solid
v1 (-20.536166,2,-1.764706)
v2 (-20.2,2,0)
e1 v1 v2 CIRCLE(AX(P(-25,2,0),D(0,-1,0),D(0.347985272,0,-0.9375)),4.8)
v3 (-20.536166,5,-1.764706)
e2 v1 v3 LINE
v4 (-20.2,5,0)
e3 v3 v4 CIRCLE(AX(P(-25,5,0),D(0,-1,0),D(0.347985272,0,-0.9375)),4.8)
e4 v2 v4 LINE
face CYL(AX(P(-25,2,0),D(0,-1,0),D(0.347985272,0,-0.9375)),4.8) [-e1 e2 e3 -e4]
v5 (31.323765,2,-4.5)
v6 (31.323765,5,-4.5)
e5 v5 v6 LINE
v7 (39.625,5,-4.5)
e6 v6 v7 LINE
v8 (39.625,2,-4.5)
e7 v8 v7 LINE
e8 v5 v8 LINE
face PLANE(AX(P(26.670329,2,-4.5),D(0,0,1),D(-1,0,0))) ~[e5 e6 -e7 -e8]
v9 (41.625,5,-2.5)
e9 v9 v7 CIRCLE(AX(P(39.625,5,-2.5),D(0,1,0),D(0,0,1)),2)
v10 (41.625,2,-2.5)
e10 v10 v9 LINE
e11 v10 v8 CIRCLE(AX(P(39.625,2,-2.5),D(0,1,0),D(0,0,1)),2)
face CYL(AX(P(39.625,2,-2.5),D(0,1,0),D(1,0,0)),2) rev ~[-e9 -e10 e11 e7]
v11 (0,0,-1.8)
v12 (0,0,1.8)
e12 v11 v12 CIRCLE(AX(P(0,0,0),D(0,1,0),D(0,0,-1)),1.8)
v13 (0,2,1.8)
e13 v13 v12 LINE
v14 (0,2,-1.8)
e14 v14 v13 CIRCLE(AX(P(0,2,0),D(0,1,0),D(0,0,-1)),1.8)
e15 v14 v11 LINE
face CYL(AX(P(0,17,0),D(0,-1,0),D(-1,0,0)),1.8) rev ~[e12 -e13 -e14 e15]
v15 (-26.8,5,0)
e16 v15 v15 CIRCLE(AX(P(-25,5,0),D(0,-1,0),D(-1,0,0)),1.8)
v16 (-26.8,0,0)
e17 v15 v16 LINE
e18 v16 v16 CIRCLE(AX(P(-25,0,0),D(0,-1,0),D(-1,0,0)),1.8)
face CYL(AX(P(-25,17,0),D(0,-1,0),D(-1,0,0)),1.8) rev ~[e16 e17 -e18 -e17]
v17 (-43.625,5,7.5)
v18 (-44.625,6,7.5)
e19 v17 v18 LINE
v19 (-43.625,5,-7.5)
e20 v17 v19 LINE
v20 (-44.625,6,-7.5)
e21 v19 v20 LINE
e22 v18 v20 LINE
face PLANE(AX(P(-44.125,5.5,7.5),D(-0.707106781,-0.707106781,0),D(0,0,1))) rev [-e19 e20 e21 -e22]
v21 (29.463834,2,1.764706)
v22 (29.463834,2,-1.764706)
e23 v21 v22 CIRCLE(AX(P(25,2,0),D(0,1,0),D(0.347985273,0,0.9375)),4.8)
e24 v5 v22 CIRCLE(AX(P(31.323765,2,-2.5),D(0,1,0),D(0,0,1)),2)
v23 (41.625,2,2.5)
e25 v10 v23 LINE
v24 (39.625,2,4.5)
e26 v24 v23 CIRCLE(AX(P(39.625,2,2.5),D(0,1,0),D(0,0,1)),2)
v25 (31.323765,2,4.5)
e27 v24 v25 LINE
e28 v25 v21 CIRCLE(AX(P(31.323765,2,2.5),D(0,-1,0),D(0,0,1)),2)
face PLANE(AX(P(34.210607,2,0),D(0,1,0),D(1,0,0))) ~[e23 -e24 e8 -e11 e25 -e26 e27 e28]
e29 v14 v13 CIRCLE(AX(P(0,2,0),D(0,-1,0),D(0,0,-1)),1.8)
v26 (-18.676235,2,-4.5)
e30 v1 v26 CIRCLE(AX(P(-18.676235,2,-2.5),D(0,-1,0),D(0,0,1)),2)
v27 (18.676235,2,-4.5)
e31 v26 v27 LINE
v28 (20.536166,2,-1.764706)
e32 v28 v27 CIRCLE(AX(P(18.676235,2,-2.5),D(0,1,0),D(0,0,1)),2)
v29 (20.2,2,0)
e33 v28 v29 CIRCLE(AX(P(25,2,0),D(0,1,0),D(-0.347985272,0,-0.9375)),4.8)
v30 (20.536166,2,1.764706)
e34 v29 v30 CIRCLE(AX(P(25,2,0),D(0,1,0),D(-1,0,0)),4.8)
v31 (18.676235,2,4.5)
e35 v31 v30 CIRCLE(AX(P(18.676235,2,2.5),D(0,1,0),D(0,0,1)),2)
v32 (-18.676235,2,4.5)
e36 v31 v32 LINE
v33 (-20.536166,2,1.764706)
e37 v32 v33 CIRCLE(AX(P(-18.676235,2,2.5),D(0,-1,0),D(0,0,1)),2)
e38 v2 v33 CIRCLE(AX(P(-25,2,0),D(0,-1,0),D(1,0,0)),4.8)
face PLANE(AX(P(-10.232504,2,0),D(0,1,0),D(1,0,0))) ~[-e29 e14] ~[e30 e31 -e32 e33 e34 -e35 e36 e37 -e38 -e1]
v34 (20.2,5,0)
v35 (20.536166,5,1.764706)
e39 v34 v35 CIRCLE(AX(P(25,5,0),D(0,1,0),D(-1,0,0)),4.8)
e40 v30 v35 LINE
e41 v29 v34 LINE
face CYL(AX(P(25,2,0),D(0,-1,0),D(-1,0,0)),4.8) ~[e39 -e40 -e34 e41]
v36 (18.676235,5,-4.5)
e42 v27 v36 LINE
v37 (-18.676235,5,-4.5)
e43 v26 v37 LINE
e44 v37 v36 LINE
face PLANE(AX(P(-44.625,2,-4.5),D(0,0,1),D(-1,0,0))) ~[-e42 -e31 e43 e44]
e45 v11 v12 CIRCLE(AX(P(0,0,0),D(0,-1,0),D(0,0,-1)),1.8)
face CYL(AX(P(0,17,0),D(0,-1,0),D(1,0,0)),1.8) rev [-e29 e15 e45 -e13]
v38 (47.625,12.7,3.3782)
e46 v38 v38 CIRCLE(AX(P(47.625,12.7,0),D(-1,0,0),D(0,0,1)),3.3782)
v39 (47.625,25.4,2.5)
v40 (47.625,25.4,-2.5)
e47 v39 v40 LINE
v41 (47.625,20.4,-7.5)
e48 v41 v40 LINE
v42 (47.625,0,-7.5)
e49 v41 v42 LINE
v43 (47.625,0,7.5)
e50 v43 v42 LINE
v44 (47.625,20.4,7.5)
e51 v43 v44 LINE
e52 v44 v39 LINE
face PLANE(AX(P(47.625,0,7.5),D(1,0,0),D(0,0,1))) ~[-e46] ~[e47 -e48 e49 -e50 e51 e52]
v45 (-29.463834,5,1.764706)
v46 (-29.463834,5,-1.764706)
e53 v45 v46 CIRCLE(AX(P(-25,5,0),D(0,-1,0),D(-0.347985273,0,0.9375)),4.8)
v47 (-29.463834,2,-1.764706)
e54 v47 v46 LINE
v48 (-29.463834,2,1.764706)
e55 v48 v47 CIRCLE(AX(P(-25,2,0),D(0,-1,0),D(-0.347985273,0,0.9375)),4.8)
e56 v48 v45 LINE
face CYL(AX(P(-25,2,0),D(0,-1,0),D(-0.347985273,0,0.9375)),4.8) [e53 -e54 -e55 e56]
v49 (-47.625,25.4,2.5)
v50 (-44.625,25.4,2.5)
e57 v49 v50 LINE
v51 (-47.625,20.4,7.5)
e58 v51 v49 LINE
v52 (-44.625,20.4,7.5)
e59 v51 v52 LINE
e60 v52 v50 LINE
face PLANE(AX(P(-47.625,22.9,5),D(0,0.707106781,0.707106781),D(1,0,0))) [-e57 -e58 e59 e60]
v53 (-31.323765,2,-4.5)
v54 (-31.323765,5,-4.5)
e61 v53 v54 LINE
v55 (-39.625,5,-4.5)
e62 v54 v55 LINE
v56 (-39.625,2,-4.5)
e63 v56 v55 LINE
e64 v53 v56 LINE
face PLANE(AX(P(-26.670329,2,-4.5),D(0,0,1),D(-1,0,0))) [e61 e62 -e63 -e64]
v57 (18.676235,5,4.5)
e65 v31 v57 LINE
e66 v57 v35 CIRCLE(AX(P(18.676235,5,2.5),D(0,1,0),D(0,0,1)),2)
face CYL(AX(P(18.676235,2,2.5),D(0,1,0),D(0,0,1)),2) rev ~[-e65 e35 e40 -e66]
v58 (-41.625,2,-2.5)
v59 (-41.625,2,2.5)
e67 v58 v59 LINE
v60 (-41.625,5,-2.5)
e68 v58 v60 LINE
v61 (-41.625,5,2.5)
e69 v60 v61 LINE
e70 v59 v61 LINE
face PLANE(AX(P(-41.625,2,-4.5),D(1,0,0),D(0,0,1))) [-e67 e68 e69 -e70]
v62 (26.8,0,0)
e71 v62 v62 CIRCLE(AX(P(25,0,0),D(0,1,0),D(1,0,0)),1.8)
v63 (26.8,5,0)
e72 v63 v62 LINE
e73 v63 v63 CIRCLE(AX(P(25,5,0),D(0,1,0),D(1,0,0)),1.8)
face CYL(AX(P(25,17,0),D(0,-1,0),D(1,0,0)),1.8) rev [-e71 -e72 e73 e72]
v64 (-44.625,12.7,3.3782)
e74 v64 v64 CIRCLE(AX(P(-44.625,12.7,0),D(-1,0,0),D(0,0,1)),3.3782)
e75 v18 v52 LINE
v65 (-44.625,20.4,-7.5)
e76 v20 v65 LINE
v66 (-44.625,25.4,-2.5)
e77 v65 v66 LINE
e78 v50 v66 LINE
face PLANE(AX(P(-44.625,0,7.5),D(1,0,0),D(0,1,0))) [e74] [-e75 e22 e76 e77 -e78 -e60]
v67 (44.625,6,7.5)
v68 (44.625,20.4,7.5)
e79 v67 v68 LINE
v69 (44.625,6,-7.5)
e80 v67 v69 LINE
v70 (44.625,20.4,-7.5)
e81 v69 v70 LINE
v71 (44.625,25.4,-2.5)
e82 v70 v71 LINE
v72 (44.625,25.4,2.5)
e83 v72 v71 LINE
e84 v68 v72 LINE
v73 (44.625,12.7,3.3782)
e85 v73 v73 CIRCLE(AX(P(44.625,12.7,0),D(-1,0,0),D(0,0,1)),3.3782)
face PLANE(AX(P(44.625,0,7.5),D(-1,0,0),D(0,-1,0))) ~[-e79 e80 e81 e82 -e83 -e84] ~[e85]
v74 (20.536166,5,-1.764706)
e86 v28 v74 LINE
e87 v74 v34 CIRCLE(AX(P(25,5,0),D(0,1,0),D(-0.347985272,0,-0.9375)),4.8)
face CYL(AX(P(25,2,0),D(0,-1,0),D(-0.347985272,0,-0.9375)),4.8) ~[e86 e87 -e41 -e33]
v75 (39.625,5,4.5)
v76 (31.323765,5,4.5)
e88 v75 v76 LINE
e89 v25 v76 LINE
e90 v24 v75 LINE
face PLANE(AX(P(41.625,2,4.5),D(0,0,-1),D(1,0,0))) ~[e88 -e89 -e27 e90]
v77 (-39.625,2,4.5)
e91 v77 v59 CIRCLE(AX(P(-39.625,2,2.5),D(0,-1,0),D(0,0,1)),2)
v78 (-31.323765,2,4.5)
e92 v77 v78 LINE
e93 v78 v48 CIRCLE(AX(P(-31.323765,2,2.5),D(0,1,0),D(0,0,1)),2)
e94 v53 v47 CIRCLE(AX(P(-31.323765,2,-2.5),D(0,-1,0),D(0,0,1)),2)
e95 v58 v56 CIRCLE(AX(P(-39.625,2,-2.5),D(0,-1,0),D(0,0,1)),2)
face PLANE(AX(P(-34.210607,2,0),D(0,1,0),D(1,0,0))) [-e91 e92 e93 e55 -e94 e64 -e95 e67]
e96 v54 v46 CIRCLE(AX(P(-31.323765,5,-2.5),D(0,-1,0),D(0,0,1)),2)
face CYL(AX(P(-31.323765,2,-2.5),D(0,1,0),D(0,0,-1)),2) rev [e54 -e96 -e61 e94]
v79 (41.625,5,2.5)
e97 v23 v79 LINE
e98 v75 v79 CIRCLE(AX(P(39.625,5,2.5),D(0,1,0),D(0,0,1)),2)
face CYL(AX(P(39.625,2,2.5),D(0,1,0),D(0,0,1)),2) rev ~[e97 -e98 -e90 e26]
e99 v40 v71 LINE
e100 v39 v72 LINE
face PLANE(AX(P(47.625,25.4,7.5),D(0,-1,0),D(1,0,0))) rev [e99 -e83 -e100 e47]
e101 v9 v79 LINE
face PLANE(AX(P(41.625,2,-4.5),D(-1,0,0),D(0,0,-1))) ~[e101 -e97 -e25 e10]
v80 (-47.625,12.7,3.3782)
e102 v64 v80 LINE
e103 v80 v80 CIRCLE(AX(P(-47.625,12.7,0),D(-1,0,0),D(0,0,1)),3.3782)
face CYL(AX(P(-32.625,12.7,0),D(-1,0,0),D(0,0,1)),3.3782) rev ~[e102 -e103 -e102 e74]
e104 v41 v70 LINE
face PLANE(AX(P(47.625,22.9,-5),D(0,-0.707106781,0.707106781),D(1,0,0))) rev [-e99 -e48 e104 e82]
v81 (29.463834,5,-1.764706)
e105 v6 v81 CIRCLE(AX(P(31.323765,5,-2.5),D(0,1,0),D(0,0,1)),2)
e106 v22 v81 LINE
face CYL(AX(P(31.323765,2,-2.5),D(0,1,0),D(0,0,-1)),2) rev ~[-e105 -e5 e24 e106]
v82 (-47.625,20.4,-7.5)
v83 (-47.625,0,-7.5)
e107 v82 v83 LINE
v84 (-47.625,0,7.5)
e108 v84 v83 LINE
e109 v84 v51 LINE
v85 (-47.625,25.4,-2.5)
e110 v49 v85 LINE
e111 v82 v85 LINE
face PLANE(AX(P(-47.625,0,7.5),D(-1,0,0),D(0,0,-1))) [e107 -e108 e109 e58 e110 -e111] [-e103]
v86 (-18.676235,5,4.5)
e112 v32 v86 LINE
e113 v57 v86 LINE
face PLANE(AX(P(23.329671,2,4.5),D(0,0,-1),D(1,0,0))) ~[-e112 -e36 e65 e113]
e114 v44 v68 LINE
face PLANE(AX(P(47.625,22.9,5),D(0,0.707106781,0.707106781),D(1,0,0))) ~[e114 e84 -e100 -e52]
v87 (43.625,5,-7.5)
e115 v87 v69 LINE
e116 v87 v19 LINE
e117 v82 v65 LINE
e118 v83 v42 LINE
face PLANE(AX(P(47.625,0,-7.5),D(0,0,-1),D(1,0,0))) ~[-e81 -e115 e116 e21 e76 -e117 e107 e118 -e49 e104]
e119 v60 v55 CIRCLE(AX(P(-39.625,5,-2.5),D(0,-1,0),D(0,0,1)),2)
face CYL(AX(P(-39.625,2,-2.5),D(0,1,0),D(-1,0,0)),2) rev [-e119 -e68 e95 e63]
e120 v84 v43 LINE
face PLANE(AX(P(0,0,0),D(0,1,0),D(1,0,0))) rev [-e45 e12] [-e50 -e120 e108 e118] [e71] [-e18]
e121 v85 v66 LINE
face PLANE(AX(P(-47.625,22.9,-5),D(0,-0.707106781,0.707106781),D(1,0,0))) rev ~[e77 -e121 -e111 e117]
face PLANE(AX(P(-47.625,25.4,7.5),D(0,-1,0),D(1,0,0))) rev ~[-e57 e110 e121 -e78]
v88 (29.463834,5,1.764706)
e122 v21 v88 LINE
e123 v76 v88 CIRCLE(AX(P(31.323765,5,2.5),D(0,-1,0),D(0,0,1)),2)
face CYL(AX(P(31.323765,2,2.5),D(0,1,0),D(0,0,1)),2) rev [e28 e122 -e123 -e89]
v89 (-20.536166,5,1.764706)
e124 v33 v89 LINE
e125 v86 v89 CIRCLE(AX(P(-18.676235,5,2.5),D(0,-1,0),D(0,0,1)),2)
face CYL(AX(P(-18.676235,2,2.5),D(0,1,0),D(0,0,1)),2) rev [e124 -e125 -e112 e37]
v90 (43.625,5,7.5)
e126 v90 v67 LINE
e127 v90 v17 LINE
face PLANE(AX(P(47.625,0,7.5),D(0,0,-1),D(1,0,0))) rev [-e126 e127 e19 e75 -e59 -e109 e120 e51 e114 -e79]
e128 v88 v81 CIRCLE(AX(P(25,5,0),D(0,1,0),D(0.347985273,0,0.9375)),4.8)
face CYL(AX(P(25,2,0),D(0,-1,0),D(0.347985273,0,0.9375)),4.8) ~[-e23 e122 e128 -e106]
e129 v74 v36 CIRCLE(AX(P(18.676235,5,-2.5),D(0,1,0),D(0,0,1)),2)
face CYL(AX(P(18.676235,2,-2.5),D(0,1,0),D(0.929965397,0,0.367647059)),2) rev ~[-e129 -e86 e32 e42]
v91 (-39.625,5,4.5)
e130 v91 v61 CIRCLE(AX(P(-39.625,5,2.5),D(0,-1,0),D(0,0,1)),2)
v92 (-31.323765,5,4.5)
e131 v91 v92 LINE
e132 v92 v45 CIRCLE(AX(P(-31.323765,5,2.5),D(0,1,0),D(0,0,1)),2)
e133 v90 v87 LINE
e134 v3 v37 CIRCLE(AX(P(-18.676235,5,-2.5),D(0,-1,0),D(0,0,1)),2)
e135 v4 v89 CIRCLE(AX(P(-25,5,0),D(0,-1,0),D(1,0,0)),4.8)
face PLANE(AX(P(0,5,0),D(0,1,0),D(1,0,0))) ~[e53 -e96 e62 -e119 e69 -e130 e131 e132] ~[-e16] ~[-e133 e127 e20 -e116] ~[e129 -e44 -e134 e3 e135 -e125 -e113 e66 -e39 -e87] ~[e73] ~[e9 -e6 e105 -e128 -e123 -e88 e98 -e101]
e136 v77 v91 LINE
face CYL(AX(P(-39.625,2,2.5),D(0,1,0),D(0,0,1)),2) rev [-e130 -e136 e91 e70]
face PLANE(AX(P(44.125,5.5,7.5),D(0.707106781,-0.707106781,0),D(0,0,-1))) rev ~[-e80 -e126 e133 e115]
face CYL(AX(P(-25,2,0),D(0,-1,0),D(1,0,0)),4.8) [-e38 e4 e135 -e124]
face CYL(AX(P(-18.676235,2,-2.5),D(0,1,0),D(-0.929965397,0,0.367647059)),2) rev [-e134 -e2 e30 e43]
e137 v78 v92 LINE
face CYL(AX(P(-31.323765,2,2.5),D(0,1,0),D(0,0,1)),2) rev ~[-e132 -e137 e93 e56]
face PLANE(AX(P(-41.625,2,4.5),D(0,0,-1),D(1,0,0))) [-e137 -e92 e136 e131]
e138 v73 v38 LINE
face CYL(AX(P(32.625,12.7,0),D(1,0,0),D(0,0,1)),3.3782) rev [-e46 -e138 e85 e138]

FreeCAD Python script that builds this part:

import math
import FreeCAD as App
import Part
import Sketcher
from FreeCAD import Vector
Q = App.Units.Quantity


def edges_at(feature, points):
    """Names of the edges that pass closest to the given points."""
    edges = feature.Shape.Edges
    near = lambda p: min(range(len(edges)), key=lambda i: edges[i].distToShape(Part.Vertex(*p))[0])
    return sorted({f"Edge{near(p) + 1}" for p in points})


def add_polygon(sketch, points):
    """Adds a closed chain of lines whose ends are joined by coincident constraints."""
    first, n = sketch.GeometryCount, len(points)
    for a, b in zip(points, points[1:] + points[:1]):
        sketch.addGeometry(Part.LineSegment(App.Vector(*a, 0), App.Vector(*b, 0)), False)
    for i in range(n):
        sketch.addConstraint(Sketcher.Constraint("Coincident", first + i, 2, first + (i + 1) % n, 1))

doc = App.newDocument("Part")
body = doc.addObject("PartDesign::Body", "Body")

sketch1 = body.newObject("Sketcher::SketchObject", "Sketch")
sketch1.AttachmentSupport = (doc.getObject("XZ_Plane"), [""])
sketch1.MapMode = "FlatFace"
add_polygon(sketch1, [(-47.625, -7.5), (-47.625, 7.5), (47.625, 7.5), (47.625, -7.5)])
sketch1.addConstraint(Sketcher.Constraint("Vertical", 0))
sketch1.addConstraint(Sketcher.Constraint("Horizontal", 1))
sketch1.addConstraint(Sketcher.Constraint("Vertical", 2))
sketch1.addConstraint(Sketcher.Constraint("Horizontal", 3))
sketch1.addConstraint(Sketcher.Constraint("Symmetric", 0, 2, 2, 2, -1, 1))
sketch1.addConstraint(Sketcher.Constraint("DistanceY", 0, 1, 0, 2, Q("15 mm")))
sketch1.addConstraint(Sketcher.Constraint("DistanceX", 1, 1, 1, 2, Q("95.25 mm")))
pad1 = body.newObject("PartDesign::Pad", "Pad")
pad1.Profile = sketch1
pad1.Length = 5
pad1.Reversed = True

sketch2 = body.newObject("Sketcher::SketchObject", "Sketch001")
sketch2.AttachmentSupport = (doc.getObject("XY_Plane"), [""])
sketch2.MapMode = "FlatFace"
sketch2.AttachmentOffset = App.Placement(Vector(0, 0, 7.5), App.Rotation())
add_polygon(sketch2, [(-47.625, 25.4), (-47.625, 0), (-44.625, 0), (-44.625, 25.4)])
sketch2.addConstraint(Sketcher.Constraint("Vertical", 0))
sketch2.addConstraint(Sketcher.Constraint("Horizontal", 1))
sketch2.addConstraint(Sketcher.Constraint("Vertical", 2))
sketch2.addConstraint(Sketcher.Constraint("Horizontal", 3))
sketch2.addConstraint(Sketcher.Constraint("PointOnObject", 0, 2, -1))
sketch2.addConstraint(Sketcher.Constraint("DistanceX", 1, 1, 1, 2, Q("3 mm")))
sketch2.addConstraint(Sketcher.Constraint("DistanceY", 0, 2, 0, 1, Q("25.4 mm")))
sketch2.addConstraint(Sketcher.Constraint("DistanceX", 0, 2, -1, 1, Q("47.625 mm")))
pad2 = body.newObject("PartDesign::Pad", "Pad001")
pad2.Profile = sketch2
pad2.Length = 15
pad2.Reversed = True

sketch3 = body.newObject("Sketcher::SketchObject", "Sketch002")
sketch3.AttachmentSupport = (doc.getObject("YZ_Plane"), [""])
sketch3.MapMode = "FlatFace"
sketch3.AttachmentOffset = App.Placement(Vector(0, 0, -44.625), App.Rotation())
sketch3.addGeometry(Part.Circle(Vector(12.7, 0, 0), Vector(0, 0, 1), 3.3782), False)
sketch3.addConstraint(Sketcher.Constraint("PointOnObject", 0, 3, -1))
sketch3.addConstraint(Sketcher.Constraint("Diameter", 0, Q("6.7564 mm")))
sketch3.addConstraint(Sketcher.Constraint("DistanceX", -1, 1, 0, 3, Q("12.7 mm")))
doc.recompute()
hole = body.newObject("PartDesign::Hole", "Hole")
hole.Profile = sketch3
hole.ThreadType = "None"
hole.Diameter = 6.7564
hole.DepthType = "Dimension"
hole.Depth = 12
hole.DrillPoint = "Angled"
hole.DrillPointAngle = 118

sketch4 = body.newObject("Sketcher::SketchObject", "Sketch003")
sketch4.AttachmentSupport = (doc.getObject("XZ_Plane"), [""])
sketch4.MapMode = "FlatFace"
sketch4.AttachmentOffset = App.Placement(Vector(0, 0, -5), App.Rotation())
sketch4.addGeometry(Part.Circle(Vector(-25, 0, 0), Vector(0, 0, 1), 1.8), False)
sketch4.addGeometry(Part.Circle(Vector(0, 0, 0), Vector(0, 0, 1), 1.8), False)
sketch4.addConstraint(Sketcher.Constraint("Coincident", 1, 3, -1, 1))
sketch4.addConstraint(Sketcher.Constraint("Equal", 0, 1))
sketch4.addConstraint(Sketcher.Constraint("PointOnObject", 0, 3, -1))
sketch4.addConstraint(Sketcher.Constraint("Diameter", 0, Q("3.6 mm")))
sketch4.addConstraint(Sketcher.Constraint("DistanceX", 0, 3, -1, 1, Q("25 mm")))
doc.recompute()
hole2 = body.newObject("PartDesign::Hole", "Hole001")
hole2.Profile = sketch4
hole2.ThreadType = "None"
hole2.Diameter = 3.6
hole2.DepthType = "Dimension"
hole2.Depth = 12
hole2.DrillPoint = "Angled"
hole2.DrillPointAngle = 118
hole2.Reversed = True

sketch5 = body.newObject("Sketcher::SketchObject", "Sketch004")
sketch5.AttachmentSupport = (doc.getObject("XZ_Plane"), [""])
sketch5.MapMode = "FlatFace"
sketch5.AttachmentOffset = App.Placement(Vector(0, 0, -2), App.Rotation())
sketch5.addGeometry(Part.ArcOfCircle(Part.Circle(Vector(-25, 0, 0), Vector(0, 0, 1), 4.8), math.radians(110.364135), math.radians(249.635865)), False)
sketch5.addGeometry(Part.LineSegment(Vector(-26.670329, -4.5, 0), Vector(-41.625, -4.5, 0)), False)
sketch5.addGeometry(Part.LineSegment(Vector(-41.625, -4.5, 0), Vector(-41.625, 4.5, 0)), False)
sketch5.addGeometry(Part.LineSegment(Vector(-41.625, 4.5, 0), Vector(-26.670329, 4.5, 0)), False)
sketch5.addGeometry(Part.LineSegment(Vector(44.625, 4.5, 0), Vector(44.625, -4.5, 0)), False)
sketch5.addGeometry(Part.LineSegment(Vector(44.625, -4.5, 0), Vector(-23.329671, -4.5, 0)), False)
sketch5.addGeometry(Part.ArcOfCircle(Part.Circle(Vector(-25, 0, 0), Vector(0, 0, 1), 4.8), math.radians(-69.635865), math.radians(0)), False)
sketch5.addGeometry(Part.ArcOfCircle(Part.Circle(Vector(-25, 0, 0), Vector(0, 0, 1), 4.8), math.radians(0), math.radians(69.635865)), False)
sketch5.addGeometry(Part.LineSegment(Vector(-23.329671, 4.5, 0), Vector(44.625, 4.5, 0)), False)
sketch5.addGeometry(Part.Circle(Vector(0, 0, 0), Vector(0, 0, 1), 1.8), False)
sketch5.addConstraint(Sketcher.Constraint("Coincident", 0, 2, 1, 1))
sketch5.addConstraint(Sketcher.Constraint("Coincident", 1, 2, 2, 1))
sketch5.addConstraint(Sketcher.Constraint("Coincident", 2, 2, 3, 1))
sketch5.addConstraint(Sketcher.Constraint("Coincident", 3, 2, 0, 1))
sketch5.addConstraint(Sketcher.Constraint("Coincident", 4, 2, 5, 1))
sketch5.addConstraint(Sketcher.Constraint("Coincident", 5, 2, 6, 1))
sketch5.addConstraint(Sketcher.Constraint("Tangent", 6, 2, 7, 1))
sketch5.addConstraint(Sketcher.Constraint("Coincident", 7, 2, 8, 1))
sketch5.addConstraint(Sketcher.Constraint("Coincident", 8, 2, 4, 1))
sketch5.addConstraint(Sketcher.Constraint("Horizontal", 1))
sketch5.addConstraint(Sketcher.Constraint("Vertical", 2))
sketch5.addConstraint(Sketcher.Constraint("Horizontal", 3))
sketch5.addConstraint(Sketcher.Constraint("Vertical", 4))
sketch5.addConstraint(Sketcher.Constraint("Horizontal", 5))
sketch5.addConstraint(Sketcher.Constraint("Horizontal", 8))
sketch5.addConstraint(Sketcher.Constraint("Coincident", 9, 3, -1, 1))
sketch5.addConstraint(Sketcher.Constraint("Coincident", 6, 3, 0, 3))
sketch5.addConstraint(Sketcher.Constraint("Equal", 0, 6))
sketch5.addConstraint(Sketcher.Constraint("Equal", 6, 7))
sketch5.addConstraint(Sketcher.Constraint("Symmetric", 0, 2, 3, 2, -1))
sketch5.addConstraint(Sketcher.Constraint("PointOnObject", 6, 2, -1))
sketch5.addConstraint(Sketcher.Constraint("Horizontal", 1, 2, 4, 2))
sketch5.addConstraint(Sketcher.Constraint("Horizontal", 3, 2, 7, 2))
sketch5.addConstraint(Sketcher.Constraint("Diameter", 9, Q("3.6 mm")))
sketch5.addConstraint(Sketcher.Constraint("Radius", 0, Q("4.8 mm")))
sketch5.addConstraint(Sketcher.Constraint("DistanceY", 2, 1, 2, 2, Q("9 mm")))
sketch5.addConstraint(Sketcher.Constraint("DistanceX", 0, 3, -1, 1, Q("25 mm")))
sketch5.addConstraint(Sketcher.Constraint("DistanceX", 1, 2, -1, 1, Q("41.625 mm")))
sketch5.addConstraint(Sketcher.Constraint("DistanceX", -1, 1, 4, 2, Q("44.625 mm")))
pocket1 = body.newObject("PartDesign::Pocket", "Pocket")
pocket1.Profile = sketch5
pocket1.Length = 3
doc.recompute()

fillet = body.newObject("PartDesign::Fillet", "Fillet")
fillet.Base = (pocket1, edges_at(pocket1, [
    (-26.67, 3.5, -4.5),
    (-26.67, 3.5, 4.5),
    (-41.625, 3.5, 4.5),
    (-41.625, 3.5, -4.5),
    (-23.33, 3.5, 4.5),
    (-23.33, 3.5, -4.5),
]))
fillet.Radius = 2
doc.recompute()

chamfer = body.newObject("PartDesign::Chamfer", "Chamfer")
chamfer.Base = (fillet, edges_at(fillet, [(-44.625, 5, 0)]))
chamfer.Size = 1
doc.recompute()

chamfer2 = body.newObject("PartDesign::Chamfer", "Chamfer001")
chamfer2.Base = (chamfer, edges_at(chamfer, [(-46.125, 25.4, 7.5), (-46.125, 25.4, -7.5)]))
chamfer2.Size = 5

sketch6 = body.newObject("Sketcher::SketchObject", "Sketch005")
sketch6.AttachmentSupport = (doc.getObject("XY_Plane"), [""])
sketch6.MapMode = "FlatFace"
sketch6.AttachmentOffset = App.Placement(Vector(0, 0, 7.5), App.Rotation())
add_polygon(sketch6, [(0, 33.458042), (0, 0), (79.639401, 0), (79.639401, 33.458042)])
sketch6.addConstraint(Sketcher.Constraint("Vertical", 0))
sketch6.addConstraint(Sketcher.Constraint("Horizontal", 1))
sketch6.addConstraint(Sketcher.Constraint("Vertical", 2))
sketch6.addConstraint(Sketcher.Constraint("Horizontal", 3))
sketch6.addConstraint(Sketcher.Constraint("Coincident", 0, 2, -1, 1))
sketch6.addConstraint(Sketcher.Constraint("DistanceX", 1, 1, 1, 2, Q("79.639401 mm")))
sketch6.addConstraint(Sketcher.Constraint("DistanceY", 0, 2, 0, 1, Q("33.458042 mm")))
pocket2 = body.newObject("PartDesign::Pocket", "Pocket001")
pocket2.Profile = sketch6
pocket2.Type = "ThroughAll"
body2 = doc.addObject("PartDesign::Body", "Body001")
doc.recompute()

body2.BaseFeature = body
doc.recompute()

mirroring = doc.addObject("Part::Mirroring", "Mirroring")
mirroring.Source = body
mirroring.Base = Vector(0, 0, 0)
mirroring.Normal = Vector(1, 0, 0)
body3 = doc.addObject("PartDesign::Body", "Body002")
body3.BaseFeature = mirroring
boolean = body2.newObject("PartDesign::Boolean", "Boolean")
boolean.Type = "Fuse"
boolean.addObjects([body3])
doc.recompute()
mirroring.Visibility = False

doc.recompute()
